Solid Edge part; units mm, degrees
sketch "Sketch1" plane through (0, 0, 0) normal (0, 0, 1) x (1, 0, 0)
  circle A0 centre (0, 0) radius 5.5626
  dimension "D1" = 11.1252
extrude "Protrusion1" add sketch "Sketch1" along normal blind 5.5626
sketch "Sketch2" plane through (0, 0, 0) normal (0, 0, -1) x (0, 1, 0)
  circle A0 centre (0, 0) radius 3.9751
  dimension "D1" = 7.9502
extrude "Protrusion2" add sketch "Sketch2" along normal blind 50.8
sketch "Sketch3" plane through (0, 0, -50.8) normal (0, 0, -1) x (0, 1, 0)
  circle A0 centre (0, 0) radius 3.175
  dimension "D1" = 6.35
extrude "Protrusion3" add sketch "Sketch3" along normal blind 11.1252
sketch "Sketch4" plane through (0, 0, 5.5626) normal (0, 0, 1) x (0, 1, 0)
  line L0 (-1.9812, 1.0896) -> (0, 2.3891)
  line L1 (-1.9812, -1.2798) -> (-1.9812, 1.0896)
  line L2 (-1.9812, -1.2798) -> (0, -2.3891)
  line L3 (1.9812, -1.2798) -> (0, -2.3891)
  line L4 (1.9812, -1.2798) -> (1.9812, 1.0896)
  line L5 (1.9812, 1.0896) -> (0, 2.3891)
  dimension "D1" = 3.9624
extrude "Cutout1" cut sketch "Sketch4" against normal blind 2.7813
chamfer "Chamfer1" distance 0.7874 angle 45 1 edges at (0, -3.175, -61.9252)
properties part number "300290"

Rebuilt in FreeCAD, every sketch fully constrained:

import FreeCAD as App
import Part
import Sketcher

V = App.Vector
Q = App.Units.Quantity


def edges_at(feature, points):
    """Names of the edges that pass closest to the given points."""
    edges = feature.Shape.Edges
    near = lambda p: min(range(len(edges)), key=lambda i: edges[i].distToShape(Part.Vertex(*p))[0])
    return sorted({f"Edge{near(p) + 1}" for p in points})

doc = App.newDocument("Part")
body = doc.addObject("PartDesign::Body", "Body")

# Sketch on XY plane
sketch1 = doc.addObject("Sketcher::SketchObject", "Sketch")
body.addObject(sketch1)
sketch1.AttachmentSupport = (doc.XY_Plane, [""])
sketch1.MapMode = "FlatFace"
sketch1.addGeometry(Part.Circle(V(0, 0, 0), V(0, 0, 1), 6), False)
sketch1.addConstraint([
    Sketcher.Constraint("Coincident", 0, 3, -1, 1),
    Sketcher.Constraint("Diameter", 0, Q("0.438 in")),
])
pad1 = doc.addObject("PartDesign::Pad", "Pad")
body.addObject(pad1)
pad1.Profile = sketch1
pad1.Length = Q("0.219 in")

# Sketch on XY plane
sketch2 = doc.addObject("Sketcher::SketchObject", "Sketch001")
body.addObject(sketch2)
sketch2.AttachmentSupport = (doc.XY_Plane, [""])
sketch2.MapMode = "FlatFace"
sketch2.addGeometry(Part.Circle(V(0, 0, 0), V(0, 0, 1), 4), False)
sketch2.addConstraint([
    Sketcher.Constraint("Coincident", 0, 3, -1, 1),
    Sketcher.Constraint("Diameter", 0, Q("0.313 in")),
])
pad2 = doc.addObject("PartDesign::Pad", "Pad001")
body.addObject(pad2)
pad2.Profile = sketch2
pad2.Length = Q("2 in")
pad2.Reversed = True

# Sketch on XY plane
sketch3 = doc.addObject("Sketcher::SketchObject", "Sketch002")
body.addObject(sketch3)
sketch3.AttachmentSupport = (doc.XY_Plane, [""])
sketch3.MapMode = "FlatFace"
sketch3.AttachmentOffset = App.Placement(V(0, 0, -2 * 25.4), App.Rotation())
sketch3.addGeometry(Part.Circle(V(0, 0, 0), V(0, 0, 1), 3.2), False)
sketch3.addConstraint([
    Sketcher.Constraint("Coincident", 0, 3, -1, 1),
    Sketcher.Constraint("Diameter", 0, Q("0.25 in")),
])
pad3 = doc.addObject("PartDesign::Pad", "Pad002")
body.addObject(pad3)
pad3.Profile = sketch3
pad3.Length = Q("0.438 in")
pad3.Reversed = True

# Sketch on XY plane
sketch4 = doc.addObject("Sketcher::SketchObject", "Sketch003")
body.addObject(sketch4)
sketch4.AttachmentSupport = (doc.XY_Plane, [""])
sketch4.MapMode = "FlatFace"
sketch4.AttachmentOffset = App.Placement(V(0, 0, 0.219 * 25.4), App.Rotation())
sketch4.addGeometry([
    Part.LineSegment(V(-2.4, 0, 0), V(-1.1, -2, 0)),  # 0
    Part.LineSegment(V(-1.1, -2, 0), V(1.3, -2, 0)),  # 1
    Part.LineSegment(V(1.3, -2, 0), V(2.4, 0, 0)),  # 2
    Part.LineSegment(V(2.4, 0, 0), V(1.3, 2, 0)),  # 3
    Part.LineSegment(V(1.3, 2, 0), V(-1.1, 2, 0)),  # 4
    Part.LineSegment(V(-1.1, 2, 0), V(-2.4, 0, 0)),  # 5
], False)
sketch4.addConstraint([
    Sketcher.Constraint("Coincident", 0, 2, 1, 1),
    Sketcher.Constraint("Coincident", 1, 2, 2, 1),
    Sketcher.Constraint("Coincident", 2, 2, 3, 1),
    Sketcher.Constraint("Coincident", 3, 2, 4, 1),
    Sketcher.Constraint("Coincident", 4, 2, 5, 1),
    Sketcher.Constraint("Coincident", 5, 2, 0, 1),
    Sketcher.Constraint("Horizontal", 1),
    Sketcher.Constraint("Horizontal", 4),
    Sketcher.Constraint("Symmetric", 2, 2, 5, 2, -1, 1),
    Sketcher.Constraint("Symmetric", 1, 2, 3, 2, -1),
    Sketcher.Constraint("PointOnObject", 2, 2, -1),
    Sketcher.Constraint("Vertical", 0, 2, 4, 2),
    Sketcher.Constraint("DistanceY", 0, 2, -1, 1, Q("0.078 in")),
    Sketcher.Constraint("Distance", 2, Q("0.0894 in")),
    Sketcher.Constraint("DistanceX", 1, 1, 1, 2, 2.3694),
    Sketcher.Constraint("DistanceX", 0, 2, -1, 1, Q("0.0429 in")),
])
pocket1 = doc.addObject("PartDesign::Pocket", "Pocket")
body.addObject(pocket1)
pocket1.Profile = sketch4
pocket1.Length = Q("0.1095 in")
doc.recompute()

chamfer = doc.addObject("PartDesign::Chamfer", "Chamfer")
body.addObject(chamfer)
chamfer.Base = (pocket1, edges_at(pocket1, [(0, -3.175, -61.925)]))
chamfer.Size = Q("0.031 in")

doc.recompute()
